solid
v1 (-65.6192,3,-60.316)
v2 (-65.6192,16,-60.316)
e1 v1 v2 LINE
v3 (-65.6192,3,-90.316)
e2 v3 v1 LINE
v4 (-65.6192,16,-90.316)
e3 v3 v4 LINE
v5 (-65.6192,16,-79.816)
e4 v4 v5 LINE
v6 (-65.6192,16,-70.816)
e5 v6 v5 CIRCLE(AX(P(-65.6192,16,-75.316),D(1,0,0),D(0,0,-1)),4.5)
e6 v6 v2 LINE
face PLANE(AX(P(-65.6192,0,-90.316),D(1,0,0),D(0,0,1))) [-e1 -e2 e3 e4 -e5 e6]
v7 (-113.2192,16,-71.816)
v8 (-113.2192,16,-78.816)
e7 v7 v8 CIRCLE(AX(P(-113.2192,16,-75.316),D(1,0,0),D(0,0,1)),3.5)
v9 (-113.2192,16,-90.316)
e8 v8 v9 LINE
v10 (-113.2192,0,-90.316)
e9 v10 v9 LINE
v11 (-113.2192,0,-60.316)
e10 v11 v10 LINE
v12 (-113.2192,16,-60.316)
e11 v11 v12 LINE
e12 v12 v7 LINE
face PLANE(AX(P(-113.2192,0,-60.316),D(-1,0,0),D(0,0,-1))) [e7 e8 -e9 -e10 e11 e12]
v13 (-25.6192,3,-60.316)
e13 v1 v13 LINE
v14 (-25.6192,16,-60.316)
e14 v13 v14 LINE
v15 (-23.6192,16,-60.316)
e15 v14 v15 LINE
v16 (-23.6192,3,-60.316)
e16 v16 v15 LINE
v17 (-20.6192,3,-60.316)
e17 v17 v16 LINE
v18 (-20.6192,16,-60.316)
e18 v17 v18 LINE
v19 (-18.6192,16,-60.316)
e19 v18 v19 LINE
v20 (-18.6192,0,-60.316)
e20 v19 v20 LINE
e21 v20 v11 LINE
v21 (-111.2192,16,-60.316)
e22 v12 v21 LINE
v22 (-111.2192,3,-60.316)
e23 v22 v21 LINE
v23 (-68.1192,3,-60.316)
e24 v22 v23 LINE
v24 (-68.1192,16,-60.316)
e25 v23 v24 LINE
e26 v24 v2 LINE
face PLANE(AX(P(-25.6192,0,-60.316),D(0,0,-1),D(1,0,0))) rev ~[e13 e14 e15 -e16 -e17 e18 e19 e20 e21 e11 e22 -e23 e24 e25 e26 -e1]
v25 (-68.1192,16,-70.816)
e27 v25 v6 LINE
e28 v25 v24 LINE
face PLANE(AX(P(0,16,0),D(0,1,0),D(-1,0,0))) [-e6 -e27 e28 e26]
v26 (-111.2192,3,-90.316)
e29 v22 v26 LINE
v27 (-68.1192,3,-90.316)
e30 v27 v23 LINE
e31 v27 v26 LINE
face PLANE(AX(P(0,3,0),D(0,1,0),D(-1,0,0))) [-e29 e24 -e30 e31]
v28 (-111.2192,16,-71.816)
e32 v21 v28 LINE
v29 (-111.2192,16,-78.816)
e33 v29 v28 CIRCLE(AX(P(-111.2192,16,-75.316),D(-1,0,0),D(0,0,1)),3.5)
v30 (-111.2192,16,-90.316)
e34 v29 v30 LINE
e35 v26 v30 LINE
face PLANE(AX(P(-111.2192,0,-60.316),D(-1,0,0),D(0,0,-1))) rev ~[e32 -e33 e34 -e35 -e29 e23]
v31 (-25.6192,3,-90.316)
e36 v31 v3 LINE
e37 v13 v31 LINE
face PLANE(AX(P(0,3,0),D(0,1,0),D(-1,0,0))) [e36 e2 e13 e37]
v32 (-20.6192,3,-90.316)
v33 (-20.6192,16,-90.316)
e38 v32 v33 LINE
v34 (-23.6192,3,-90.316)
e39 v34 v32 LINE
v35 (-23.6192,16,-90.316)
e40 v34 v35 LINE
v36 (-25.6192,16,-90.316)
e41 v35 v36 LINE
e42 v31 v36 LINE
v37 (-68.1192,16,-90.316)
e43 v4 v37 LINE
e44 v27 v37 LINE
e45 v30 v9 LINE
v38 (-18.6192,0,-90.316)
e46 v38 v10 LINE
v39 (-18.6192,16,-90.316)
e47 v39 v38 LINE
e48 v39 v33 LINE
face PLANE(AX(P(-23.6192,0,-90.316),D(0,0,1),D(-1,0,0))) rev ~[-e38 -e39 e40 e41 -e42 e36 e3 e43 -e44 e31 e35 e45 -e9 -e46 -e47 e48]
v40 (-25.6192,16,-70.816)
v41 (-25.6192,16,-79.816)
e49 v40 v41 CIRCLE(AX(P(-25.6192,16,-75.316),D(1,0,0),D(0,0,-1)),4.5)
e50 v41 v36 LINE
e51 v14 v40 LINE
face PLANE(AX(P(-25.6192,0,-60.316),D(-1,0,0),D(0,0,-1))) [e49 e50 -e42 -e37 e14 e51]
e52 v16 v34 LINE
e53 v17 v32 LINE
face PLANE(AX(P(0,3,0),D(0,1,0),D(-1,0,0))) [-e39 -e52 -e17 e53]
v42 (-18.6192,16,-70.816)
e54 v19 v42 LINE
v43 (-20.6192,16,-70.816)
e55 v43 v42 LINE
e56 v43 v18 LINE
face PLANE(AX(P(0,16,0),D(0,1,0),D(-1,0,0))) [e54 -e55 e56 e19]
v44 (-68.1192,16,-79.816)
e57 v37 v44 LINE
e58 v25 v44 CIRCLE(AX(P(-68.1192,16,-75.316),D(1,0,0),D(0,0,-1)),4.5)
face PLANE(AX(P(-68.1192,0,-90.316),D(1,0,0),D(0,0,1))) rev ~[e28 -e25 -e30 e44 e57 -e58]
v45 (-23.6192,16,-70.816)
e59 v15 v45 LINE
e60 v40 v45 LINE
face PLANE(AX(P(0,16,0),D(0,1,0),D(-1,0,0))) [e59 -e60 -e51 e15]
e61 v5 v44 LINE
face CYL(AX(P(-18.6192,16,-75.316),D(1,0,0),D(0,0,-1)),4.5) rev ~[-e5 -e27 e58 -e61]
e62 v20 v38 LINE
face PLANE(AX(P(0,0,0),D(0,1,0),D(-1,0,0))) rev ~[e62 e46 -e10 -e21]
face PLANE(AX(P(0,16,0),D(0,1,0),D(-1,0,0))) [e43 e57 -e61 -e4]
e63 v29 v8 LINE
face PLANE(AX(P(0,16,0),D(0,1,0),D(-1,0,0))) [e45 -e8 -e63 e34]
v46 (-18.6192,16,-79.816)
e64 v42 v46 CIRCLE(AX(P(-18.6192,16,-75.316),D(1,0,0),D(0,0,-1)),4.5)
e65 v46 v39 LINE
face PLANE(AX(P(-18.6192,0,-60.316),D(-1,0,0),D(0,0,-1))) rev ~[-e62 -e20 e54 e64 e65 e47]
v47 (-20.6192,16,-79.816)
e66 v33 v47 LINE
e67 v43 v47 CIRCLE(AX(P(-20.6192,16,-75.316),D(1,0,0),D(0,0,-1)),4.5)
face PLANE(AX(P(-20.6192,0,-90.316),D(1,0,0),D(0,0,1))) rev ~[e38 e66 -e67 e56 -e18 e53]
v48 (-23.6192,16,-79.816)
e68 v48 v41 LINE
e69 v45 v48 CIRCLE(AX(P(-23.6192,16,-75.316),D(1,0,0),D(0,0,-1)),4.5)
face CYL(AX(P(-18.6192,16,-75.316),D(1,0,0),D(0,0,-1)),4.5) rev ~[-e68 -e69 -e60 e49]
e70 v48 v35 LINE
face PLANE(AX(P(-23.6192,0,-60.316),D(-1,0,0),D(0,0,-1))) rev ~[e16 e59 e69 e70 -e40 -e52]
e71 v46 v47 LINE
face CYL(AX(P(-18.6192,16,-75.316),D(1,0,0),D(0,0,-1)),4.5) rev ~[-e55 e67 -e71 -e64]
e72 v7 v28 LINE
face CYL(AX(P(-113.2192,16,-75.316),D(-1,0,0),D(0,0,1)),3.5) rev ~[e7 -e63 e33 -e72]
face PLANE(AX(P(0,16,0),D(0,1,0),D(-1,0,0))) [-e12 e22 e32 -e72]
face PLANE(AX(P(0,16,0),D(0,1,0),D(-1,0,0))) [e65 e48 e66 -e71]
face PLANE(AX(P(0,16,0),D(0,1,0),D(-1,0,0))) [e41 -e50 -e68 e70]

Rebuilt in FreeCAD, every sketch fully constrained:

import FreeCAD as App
import Part
import Sketcher
from FreeCAD import Vector
Q = App.Units.Quantity


def add_polygon(sketch, points):
    """Adds a closed chain of lines whose ends are joined by coincident constraints."""
    first, n = sketch.GeometryCount, len(points)
    for a, b in zip(points, points[1:] + points[:1]):
        sketch.addGeometry(Part.LineSegment(App.Vector(*a, 0), App.Vector(*b, 0)), False)
    for i in range(n):
        sketch.addConstraint(Sketcher.Constraint("Coincident", first + i, 2, first + (i + 1) % n, 1))

doc = App.newDocument("Part")
params = doc.addObject("Spreadsheet::Sheet", "Params")
for row, (alias, value) in enumerate([
    ("sketch1_width", "3 mm"),
    ("sketch1_height", "30 mm"),
    ("sketch1_width2", "40 mm"),
    ("sketch1_width3", "43.1 mm"),
    ("pad1_length", "3 mm"),
    ("sketch2_width", "2 mm"),
    ("sketch2_height", "30 mm"),
    ("pad2_length", "16 mm"),
    ("sketch3_height", "30 mm"),
    ("sketch3_width", "2.5 mm"),
    ("pad3_length", "16 mm"),
    ("sketch4_width", "2 mm"),
    ("sketch4_height", "30 mm"),
    ("pad4_length", "16 mm"),
    ("sketch5_width", "5 mm"),
    ("sketch5_height", "30 mm"),
    ("pad5_length", "3 mm"),
    ("sketch6_width", "2 mm"),
    ("sketch6_height", "30 mm"),
    ("pad6_length", "16 mm"),
    ("sketch7_diameter", "9 mm"),
    ("pocket1_length", "49.5 mm"),
    ("sketch8_diameter", "7 mm"),
    ("pocket2_length", "2 mm"),
], start=1):
    params.set(f"A{row}", alias)
    params.set(f"B{row}", "=" + value)
    params.setAlias(f"B{row}", alias)

body = doc.addObject("PartDesign::Body", "Body")
body.AllowCompound = True

# Sketch on XZ plane
sketch1 = doc.addObject("Sketcher::SketchObject", "Sketch")
body.addObject(sketch1)
sketch1.AttachmentSupport = (doc.XZ_Plane, [""])
sketch1.MapMode = "FlatFace"
add_polygon(sketch1, [(-111.2, -90.3), (-111.2, -60.3), (-68.1, -60.3), (-68.1, -90.3)])  # lines 0-3
add_polygon(sketch1, [(-65.6, -90.3), (-65.6, -60.3), (-25.6, -60.3), (-25.6, -90.3)])  # lines 4-7
add_polygon(sketch1, [(-23.6, -90.3), (-23.6, -60.3), (-20.6, -60.3), (-20.6, -90.3)])  # lines 8-11
sketch1.addConstraint([
    Sketcher.Constraint("Vertical", 0),
    Sketcher.Constraint("Horizontal", 1),
    Sketcher.Constraint("Vertical", 2),
    Sketcher.Constraint("Horizontal", 3),
    Sketcher.Constraint("Vertical", 4),
    Sketcher.Constraint("Horizontal", 5),
    Sketcher.Constraint("Vertical", 6),
    Sketcher.Constraint("Horizontal", 7),
    Sketcher.Constraint("Vertical", 8),
    Sketcher.Constraint("Horizontal", 9),
    Sketcher.Constraint("Vertical", 10),
    Sketcher.Constraint("Horizontal", 11),
    Sketcher.Constraint("Horizontal", 1, 2, 4, 2),
    Sketcher.Constraint("Horizontal", 3, 2, 6, 2),
    Sketcher.Constraint("Horizontal", 5, 2, 8, 2),
    Sketcher.Constraint("Horizontal", 7, 2, 10, 2),
    Sketcher.Constraint("DistanceX", 9, 1, 9, 2, Q("3 mm")),
    Sketcher.Constraint("DistanceY", 0, 1, 0, 2, Q("30 mm")),
    Sketcher.Constraint("DistanceX", 5, 2, 8, 2, Q("2 mm")),
    Sketcher.Constraint("DistanceX", 1, 2, 4, 2, Q("2.5 mm")),
    Sketcher.Constraint("DistanceX", 5, 1, 5, 2, Q("40 mm")),
    Sketcher.Constraint("DistanceX", 1, 1, 1, 2, Q("43.1 mm")),
    Sketcher.Constraint("DistanceY", 0, 2, -1, 1, Q("60.316 mm")),
    Sketcher.Constraint("DistanceX", 0, 2, -1, 1, Q("111.2192 mm")),
])
sketch1.setExpression("Constraints[28]", "Params.sketch1_width")
sketch1.setExpression("Constraints[29]", "Params.sketch1_height")
sketch1.setExpression("Constraints[32]", "Params.sketch1_width2")
sketch1.setExpression("Constraints[33]", "Params.sketch1_width3")
pad1 = doc.addObject("PartDesign::Pad", "Pad")
body.addObject(pad1)
pad1.Profile = sketch1
pad1.setExpression("Length", "Params.pad1_length")
pad1.Reversed = True

# Sketch on XZ plane
sketch2 = doc.addObject("Sketcher::SketchObject", "Sketch001")
body.addObject(sketch2)
sketch2.AttachmentSupport = (doc.XZ_Plane, [""])
sketch2.MapMode = "FlatFace"
add_polygon(sketch2, [(-113.2, -90.3), (-113.2, -60.3), (-111.2, -60.3), (-111.2, -90.3)])  # lines 0-3
sketch2.addConstraint([
    Sketcher.Constraint("Vertical", 0),
    Sketcher.Constraint("Horizontal", 1),
    Sketcher.Constraint("Vertical", 2),
    Sketcher.Constraint("Horizontal", 3),
    Sketcher.Constraint("DistanceX", 1, 1, 1, 2, Q("2 mm")),
    Sketcher.Constraint("DistanceY", 0, 1, 0, 2, Q("30 mm")),
    Sketcher.Constraint("DistanceY", 0, 2, -1, 1, Q("60.316 mm")),
    Sketcher.Constraint("DistanceX", 0, 2, -1, 1, Q("113.2192 mm")),
])
sketch2.setExpression("Constraints[8]", "Params.sketch2_width")
sketch2.setExpression("Constraints[9]", "Params.sketch2_height")
pad2 = doc.addObject("PartDesign::Pad", "Pad001")
body.addObject(pad2)
pad2.Profile = sketch2
pad2.setExpression("Length", "Params.pad2_length")
pad2.Reversed = True

# Sketch on XZ plane
sketch3 = doc.addObject("Sketcher::SketchObject", "Sketch002")
body.addObject(sketch3)
sketch3.AttachmentSupport = (doc.XZ_Plane, [""])
sketch3.MapMode = "FlatFace"
add_polygon(sketch3, [(-68.1, -90.3), (-68.1, -60.3), (-65.6, -60.3), (-65.6, -90.3)])  # lines 0-3
sketch3.addConstraint([
    Sketcher.Constraint("Vertical", 0),
    Sketcher.Constraint("Horizontal", 1),
    Sketcher.Constraint("Vertical", 2),
    Sketcher.Constraint("Horizontal", 3),
    Sketcher.Constraint("DistanceY", 0, 1, 0, 2, Q("30 mm")),
    Sketcher.Constraint("DistanceX", 1, 1, 1, 2, Q("2.5 mm")),
    Sketcher.Constraint("DistanceY", 0, 2, -1, 1, Q("60.316 mm")),
    Sketcher.Constraint("DistanceX", 0, 2, -1, 1, Q("68.1192 mm")),
])
sketch3.setExpression("Constraints[8]", "Params.sketch3_height")
sketch3.setExpression("Constraints[9]", "Params.sketch3_width")
pad3 = doc.addObject("PartDesign::Pad", "Pad002")
body.addObject(pad3)
pad3.Profile = sketch3
pad3.setExpression("Length", "Params.pad3_length")
pad3.Reversed = True

# Sketch on XZ plane
sketch4 = doc.addObject("Sketcher::SketchObject", "Sketch003")
body.addObject(sketch4)
sketch4.AttachmentSupport = (doc.XZ_Plane, [""])
sketch4.MapMode = "FlatFace"
add_polygon(sketch4, [(-25.6, -90.3), (-25.6, -60.3), (-23.6, -60.3), (-23.6, -90.3)])  # lines 0-3
sketch4.addConstraint([
    Sketcher.Constraint("Vertical", 0),
    Sketcher.Constraint("Horizontal", 1),
    Sketcher.Constraint("Vertical", 2),
    Sketcher.Constraint("Horizontal", 3),
    Sketcher.Constraint("DistanceX", 1, 1, 1, 2, Q("2 mm")),
    Sketcher.Constraint("DistanceY", 0, 1, 0, 2, Q("30 mm")),
    Sketcher.Constraint("DistanceY", 0, 2, -1, 1, Q("60.316 mm")),
    Sketcher.Constraint("DistanceX", 0, 2, -1, 1, Q("25.6192 mm")),
])
sketch4.setExpression("Constraints[8]", "Params.sketch4_width")
sketch4.setExpression("Constraints[9]", "Params.sketch4_height")
pad4 = doc.addObject("PartDesign::Pad", "Pad003")
body.addObject(pad4)
pad4.Profile = sketch4
pad4.setExpression("Length", "Params.pad4_length")
pad4.Reversed = True

# Sketch on XZ plane
sketch5 = doc.addObject("Sketcher::SketchObject", "Sketch004")
body.addObject(sketch5)
sketch5.AttachmentSupport = (doc.XZ_Plane, [""])
sketch5.MapMode = "FlatFace"
add_polygon(sketch5, [(-24, -90), (-24, -60), (-19, -60), (-19, -90)])  # lines 0-3
sketch5.addConstraint([
    Sketcher.Constraint("Vertical", 0),
    Sketcher.Constraint("Horizontal", 1),
    Sketcher.Constraint("Vertical", 2),
    Sketcher.Constraint("Horizontal", 3),
    Sketcher.Constraint("DistanceX", 1, 1, 1, 2, Q("5 mm")),
    Sketcher.Constraint("DistanceY", 0, 1, 0, 2, Q("30 mm")),
    Sketcher.Constraint("DistanceY", 0, 2, -1, 1, Q("60.316 mm")),
    Sketcher.Constraint("DistanceX", 0, 2, -1, 1, Q("23.6192 mm")),
])
sketch5.setExpression("Constraints[8]", "Params.sketch5_width")
sketch5.setExpression("Constraints[9]", "Params.sketch5_height")
pad5 = doc.addObject("PartDesign::Pad", "Pad004")
body.addObject(pad5)
pad5.Profile = sketch5
pad5.setExpression("Length", "Params.pad5_length")
pad5.Reversed = True

# Sketch on XZ plane
sketch6 = doc.addObject("Sketcher::SketchObject", "Sketch005")
body.addObject(sketch6)
sketch6.AttachmentSupport = (doc.XZ_Plane, [""])
sketch6.MapMode = "FlatFace"
add_polygon(sketch6, [(-20.6, -90.3), (-20.6, -60.3), (-18.6, -60.3), (-18.6, -90.3)])  # lines 0-3
sketch6.addConstraint([
    Sketcher.Constraint("Vertical", 0),
    Sketcher.Constraint("Horizontal", 1),
    Sketcher.Constraint("Vertical", 2),
    Sketcher.Constraint("Horizontal", 3),
    Sketcher.Constraint("DistanceX", 1, 1, 1, 2, Q("2 mm")),
    Sketcher.Constraint("DistanceY", 0, 1, 0, 2, Q("30 mm")),
    Sketcher.Constraint("DistanceY", 0, 2, -1, 1, Q("60.316 mm")),
    Sketcher.Constraint("DistanceX", 0, 2, -1, 1, Q("20.6192 mm")),
])
sketch6.setExpression("Constraints[8]", "Params.sketch6_width")
sketch6.setExpression("Constraints[9]", "Params.sketch6_height")
pad6 = doc.addObject("PartDesign::Pad", "Pad005")
body.addObject(pad6)
pad6.Profile = sketch6
pad6.setExpression("Length", "Params.pad6_length")
pad6.Reversed = True

# Sketch on YZ plane
sketch7 = doc.addObject("Sketcher::SketchObject", "Sketch006")
body.addObject(sketch7)
sketch7.AttachmentSupport = (doc.YZ_Plane, [""])
sketch7.MapMode = "FlatFace"
sketch7.AttachmentOffset = App.Placement(Vector(0, 0, -18.6192), App.Rotation())
sketch7.addGeometry(Part.Circle(Vector(16, -75.3, 0), Vector(0, 0, 1), 4.5), False)
sketch7.addConstraint([
    Sketcher.Constraint("Diameter", 0, Q("9 mm")),
    Sketcher.Constraint("DistanceX", -1, 1, 0, 3, Q("16 mm")),
    Sketcher.Constraint("DistanceY", 0, 3, -1, 1, Q("75.316 mm")),
])
sketch7.setExpression("Constraints[0]", "Params.sketch7_diameter")
pocket1 = doc.addObject("PartDesign::Pocket", "Pocket")
body.addObject(pocket1)
pocket1.Profile = sketch7
pocket1.setExpression("Length", "Params.pocket1_length")

# Sketch on YZ plane
sketch8 = doc.addObject("Sketcher::SketchObject", "Sketch007")
body.addObject(sketch8)
sketch8.AttachmentSupport = (doc.YZ_Plane, [""])
sketch8.MapMode = "FlatFace"
sketch8.AttachmentOffset = App.Placement(Vector(0, 0, -113.2192), App.Rotation())
sketch8.addGeometry(Part.Circle(Vector(16, -75.3, 0), Vector(0, 0, 1), 3.5), False)
sketch8.addConstraint([
    Sketcher.Constraint("Diameter", 0, Q("7 mm")),
    Sketcher.Constraint("DistanceX", -1, 1, 0, 3, Q("16 mm")),
    Sketcher.Constraint("DistanceY", 0, 3, -1, 1, Q("75.316 mm")),
])
sketch8.setExpression("Constraints[0]", "Params.sketch8_diameter")
pocket2 = doc.addObject("PartDesign::Pocket", "Pocket001")
body.addObject(pocket2)
pocket2.Profile = sketch8
pocket2.setExpression("Length", "Params.pocket2_length")
pocket2.Reversed = True

doc.recompute()
